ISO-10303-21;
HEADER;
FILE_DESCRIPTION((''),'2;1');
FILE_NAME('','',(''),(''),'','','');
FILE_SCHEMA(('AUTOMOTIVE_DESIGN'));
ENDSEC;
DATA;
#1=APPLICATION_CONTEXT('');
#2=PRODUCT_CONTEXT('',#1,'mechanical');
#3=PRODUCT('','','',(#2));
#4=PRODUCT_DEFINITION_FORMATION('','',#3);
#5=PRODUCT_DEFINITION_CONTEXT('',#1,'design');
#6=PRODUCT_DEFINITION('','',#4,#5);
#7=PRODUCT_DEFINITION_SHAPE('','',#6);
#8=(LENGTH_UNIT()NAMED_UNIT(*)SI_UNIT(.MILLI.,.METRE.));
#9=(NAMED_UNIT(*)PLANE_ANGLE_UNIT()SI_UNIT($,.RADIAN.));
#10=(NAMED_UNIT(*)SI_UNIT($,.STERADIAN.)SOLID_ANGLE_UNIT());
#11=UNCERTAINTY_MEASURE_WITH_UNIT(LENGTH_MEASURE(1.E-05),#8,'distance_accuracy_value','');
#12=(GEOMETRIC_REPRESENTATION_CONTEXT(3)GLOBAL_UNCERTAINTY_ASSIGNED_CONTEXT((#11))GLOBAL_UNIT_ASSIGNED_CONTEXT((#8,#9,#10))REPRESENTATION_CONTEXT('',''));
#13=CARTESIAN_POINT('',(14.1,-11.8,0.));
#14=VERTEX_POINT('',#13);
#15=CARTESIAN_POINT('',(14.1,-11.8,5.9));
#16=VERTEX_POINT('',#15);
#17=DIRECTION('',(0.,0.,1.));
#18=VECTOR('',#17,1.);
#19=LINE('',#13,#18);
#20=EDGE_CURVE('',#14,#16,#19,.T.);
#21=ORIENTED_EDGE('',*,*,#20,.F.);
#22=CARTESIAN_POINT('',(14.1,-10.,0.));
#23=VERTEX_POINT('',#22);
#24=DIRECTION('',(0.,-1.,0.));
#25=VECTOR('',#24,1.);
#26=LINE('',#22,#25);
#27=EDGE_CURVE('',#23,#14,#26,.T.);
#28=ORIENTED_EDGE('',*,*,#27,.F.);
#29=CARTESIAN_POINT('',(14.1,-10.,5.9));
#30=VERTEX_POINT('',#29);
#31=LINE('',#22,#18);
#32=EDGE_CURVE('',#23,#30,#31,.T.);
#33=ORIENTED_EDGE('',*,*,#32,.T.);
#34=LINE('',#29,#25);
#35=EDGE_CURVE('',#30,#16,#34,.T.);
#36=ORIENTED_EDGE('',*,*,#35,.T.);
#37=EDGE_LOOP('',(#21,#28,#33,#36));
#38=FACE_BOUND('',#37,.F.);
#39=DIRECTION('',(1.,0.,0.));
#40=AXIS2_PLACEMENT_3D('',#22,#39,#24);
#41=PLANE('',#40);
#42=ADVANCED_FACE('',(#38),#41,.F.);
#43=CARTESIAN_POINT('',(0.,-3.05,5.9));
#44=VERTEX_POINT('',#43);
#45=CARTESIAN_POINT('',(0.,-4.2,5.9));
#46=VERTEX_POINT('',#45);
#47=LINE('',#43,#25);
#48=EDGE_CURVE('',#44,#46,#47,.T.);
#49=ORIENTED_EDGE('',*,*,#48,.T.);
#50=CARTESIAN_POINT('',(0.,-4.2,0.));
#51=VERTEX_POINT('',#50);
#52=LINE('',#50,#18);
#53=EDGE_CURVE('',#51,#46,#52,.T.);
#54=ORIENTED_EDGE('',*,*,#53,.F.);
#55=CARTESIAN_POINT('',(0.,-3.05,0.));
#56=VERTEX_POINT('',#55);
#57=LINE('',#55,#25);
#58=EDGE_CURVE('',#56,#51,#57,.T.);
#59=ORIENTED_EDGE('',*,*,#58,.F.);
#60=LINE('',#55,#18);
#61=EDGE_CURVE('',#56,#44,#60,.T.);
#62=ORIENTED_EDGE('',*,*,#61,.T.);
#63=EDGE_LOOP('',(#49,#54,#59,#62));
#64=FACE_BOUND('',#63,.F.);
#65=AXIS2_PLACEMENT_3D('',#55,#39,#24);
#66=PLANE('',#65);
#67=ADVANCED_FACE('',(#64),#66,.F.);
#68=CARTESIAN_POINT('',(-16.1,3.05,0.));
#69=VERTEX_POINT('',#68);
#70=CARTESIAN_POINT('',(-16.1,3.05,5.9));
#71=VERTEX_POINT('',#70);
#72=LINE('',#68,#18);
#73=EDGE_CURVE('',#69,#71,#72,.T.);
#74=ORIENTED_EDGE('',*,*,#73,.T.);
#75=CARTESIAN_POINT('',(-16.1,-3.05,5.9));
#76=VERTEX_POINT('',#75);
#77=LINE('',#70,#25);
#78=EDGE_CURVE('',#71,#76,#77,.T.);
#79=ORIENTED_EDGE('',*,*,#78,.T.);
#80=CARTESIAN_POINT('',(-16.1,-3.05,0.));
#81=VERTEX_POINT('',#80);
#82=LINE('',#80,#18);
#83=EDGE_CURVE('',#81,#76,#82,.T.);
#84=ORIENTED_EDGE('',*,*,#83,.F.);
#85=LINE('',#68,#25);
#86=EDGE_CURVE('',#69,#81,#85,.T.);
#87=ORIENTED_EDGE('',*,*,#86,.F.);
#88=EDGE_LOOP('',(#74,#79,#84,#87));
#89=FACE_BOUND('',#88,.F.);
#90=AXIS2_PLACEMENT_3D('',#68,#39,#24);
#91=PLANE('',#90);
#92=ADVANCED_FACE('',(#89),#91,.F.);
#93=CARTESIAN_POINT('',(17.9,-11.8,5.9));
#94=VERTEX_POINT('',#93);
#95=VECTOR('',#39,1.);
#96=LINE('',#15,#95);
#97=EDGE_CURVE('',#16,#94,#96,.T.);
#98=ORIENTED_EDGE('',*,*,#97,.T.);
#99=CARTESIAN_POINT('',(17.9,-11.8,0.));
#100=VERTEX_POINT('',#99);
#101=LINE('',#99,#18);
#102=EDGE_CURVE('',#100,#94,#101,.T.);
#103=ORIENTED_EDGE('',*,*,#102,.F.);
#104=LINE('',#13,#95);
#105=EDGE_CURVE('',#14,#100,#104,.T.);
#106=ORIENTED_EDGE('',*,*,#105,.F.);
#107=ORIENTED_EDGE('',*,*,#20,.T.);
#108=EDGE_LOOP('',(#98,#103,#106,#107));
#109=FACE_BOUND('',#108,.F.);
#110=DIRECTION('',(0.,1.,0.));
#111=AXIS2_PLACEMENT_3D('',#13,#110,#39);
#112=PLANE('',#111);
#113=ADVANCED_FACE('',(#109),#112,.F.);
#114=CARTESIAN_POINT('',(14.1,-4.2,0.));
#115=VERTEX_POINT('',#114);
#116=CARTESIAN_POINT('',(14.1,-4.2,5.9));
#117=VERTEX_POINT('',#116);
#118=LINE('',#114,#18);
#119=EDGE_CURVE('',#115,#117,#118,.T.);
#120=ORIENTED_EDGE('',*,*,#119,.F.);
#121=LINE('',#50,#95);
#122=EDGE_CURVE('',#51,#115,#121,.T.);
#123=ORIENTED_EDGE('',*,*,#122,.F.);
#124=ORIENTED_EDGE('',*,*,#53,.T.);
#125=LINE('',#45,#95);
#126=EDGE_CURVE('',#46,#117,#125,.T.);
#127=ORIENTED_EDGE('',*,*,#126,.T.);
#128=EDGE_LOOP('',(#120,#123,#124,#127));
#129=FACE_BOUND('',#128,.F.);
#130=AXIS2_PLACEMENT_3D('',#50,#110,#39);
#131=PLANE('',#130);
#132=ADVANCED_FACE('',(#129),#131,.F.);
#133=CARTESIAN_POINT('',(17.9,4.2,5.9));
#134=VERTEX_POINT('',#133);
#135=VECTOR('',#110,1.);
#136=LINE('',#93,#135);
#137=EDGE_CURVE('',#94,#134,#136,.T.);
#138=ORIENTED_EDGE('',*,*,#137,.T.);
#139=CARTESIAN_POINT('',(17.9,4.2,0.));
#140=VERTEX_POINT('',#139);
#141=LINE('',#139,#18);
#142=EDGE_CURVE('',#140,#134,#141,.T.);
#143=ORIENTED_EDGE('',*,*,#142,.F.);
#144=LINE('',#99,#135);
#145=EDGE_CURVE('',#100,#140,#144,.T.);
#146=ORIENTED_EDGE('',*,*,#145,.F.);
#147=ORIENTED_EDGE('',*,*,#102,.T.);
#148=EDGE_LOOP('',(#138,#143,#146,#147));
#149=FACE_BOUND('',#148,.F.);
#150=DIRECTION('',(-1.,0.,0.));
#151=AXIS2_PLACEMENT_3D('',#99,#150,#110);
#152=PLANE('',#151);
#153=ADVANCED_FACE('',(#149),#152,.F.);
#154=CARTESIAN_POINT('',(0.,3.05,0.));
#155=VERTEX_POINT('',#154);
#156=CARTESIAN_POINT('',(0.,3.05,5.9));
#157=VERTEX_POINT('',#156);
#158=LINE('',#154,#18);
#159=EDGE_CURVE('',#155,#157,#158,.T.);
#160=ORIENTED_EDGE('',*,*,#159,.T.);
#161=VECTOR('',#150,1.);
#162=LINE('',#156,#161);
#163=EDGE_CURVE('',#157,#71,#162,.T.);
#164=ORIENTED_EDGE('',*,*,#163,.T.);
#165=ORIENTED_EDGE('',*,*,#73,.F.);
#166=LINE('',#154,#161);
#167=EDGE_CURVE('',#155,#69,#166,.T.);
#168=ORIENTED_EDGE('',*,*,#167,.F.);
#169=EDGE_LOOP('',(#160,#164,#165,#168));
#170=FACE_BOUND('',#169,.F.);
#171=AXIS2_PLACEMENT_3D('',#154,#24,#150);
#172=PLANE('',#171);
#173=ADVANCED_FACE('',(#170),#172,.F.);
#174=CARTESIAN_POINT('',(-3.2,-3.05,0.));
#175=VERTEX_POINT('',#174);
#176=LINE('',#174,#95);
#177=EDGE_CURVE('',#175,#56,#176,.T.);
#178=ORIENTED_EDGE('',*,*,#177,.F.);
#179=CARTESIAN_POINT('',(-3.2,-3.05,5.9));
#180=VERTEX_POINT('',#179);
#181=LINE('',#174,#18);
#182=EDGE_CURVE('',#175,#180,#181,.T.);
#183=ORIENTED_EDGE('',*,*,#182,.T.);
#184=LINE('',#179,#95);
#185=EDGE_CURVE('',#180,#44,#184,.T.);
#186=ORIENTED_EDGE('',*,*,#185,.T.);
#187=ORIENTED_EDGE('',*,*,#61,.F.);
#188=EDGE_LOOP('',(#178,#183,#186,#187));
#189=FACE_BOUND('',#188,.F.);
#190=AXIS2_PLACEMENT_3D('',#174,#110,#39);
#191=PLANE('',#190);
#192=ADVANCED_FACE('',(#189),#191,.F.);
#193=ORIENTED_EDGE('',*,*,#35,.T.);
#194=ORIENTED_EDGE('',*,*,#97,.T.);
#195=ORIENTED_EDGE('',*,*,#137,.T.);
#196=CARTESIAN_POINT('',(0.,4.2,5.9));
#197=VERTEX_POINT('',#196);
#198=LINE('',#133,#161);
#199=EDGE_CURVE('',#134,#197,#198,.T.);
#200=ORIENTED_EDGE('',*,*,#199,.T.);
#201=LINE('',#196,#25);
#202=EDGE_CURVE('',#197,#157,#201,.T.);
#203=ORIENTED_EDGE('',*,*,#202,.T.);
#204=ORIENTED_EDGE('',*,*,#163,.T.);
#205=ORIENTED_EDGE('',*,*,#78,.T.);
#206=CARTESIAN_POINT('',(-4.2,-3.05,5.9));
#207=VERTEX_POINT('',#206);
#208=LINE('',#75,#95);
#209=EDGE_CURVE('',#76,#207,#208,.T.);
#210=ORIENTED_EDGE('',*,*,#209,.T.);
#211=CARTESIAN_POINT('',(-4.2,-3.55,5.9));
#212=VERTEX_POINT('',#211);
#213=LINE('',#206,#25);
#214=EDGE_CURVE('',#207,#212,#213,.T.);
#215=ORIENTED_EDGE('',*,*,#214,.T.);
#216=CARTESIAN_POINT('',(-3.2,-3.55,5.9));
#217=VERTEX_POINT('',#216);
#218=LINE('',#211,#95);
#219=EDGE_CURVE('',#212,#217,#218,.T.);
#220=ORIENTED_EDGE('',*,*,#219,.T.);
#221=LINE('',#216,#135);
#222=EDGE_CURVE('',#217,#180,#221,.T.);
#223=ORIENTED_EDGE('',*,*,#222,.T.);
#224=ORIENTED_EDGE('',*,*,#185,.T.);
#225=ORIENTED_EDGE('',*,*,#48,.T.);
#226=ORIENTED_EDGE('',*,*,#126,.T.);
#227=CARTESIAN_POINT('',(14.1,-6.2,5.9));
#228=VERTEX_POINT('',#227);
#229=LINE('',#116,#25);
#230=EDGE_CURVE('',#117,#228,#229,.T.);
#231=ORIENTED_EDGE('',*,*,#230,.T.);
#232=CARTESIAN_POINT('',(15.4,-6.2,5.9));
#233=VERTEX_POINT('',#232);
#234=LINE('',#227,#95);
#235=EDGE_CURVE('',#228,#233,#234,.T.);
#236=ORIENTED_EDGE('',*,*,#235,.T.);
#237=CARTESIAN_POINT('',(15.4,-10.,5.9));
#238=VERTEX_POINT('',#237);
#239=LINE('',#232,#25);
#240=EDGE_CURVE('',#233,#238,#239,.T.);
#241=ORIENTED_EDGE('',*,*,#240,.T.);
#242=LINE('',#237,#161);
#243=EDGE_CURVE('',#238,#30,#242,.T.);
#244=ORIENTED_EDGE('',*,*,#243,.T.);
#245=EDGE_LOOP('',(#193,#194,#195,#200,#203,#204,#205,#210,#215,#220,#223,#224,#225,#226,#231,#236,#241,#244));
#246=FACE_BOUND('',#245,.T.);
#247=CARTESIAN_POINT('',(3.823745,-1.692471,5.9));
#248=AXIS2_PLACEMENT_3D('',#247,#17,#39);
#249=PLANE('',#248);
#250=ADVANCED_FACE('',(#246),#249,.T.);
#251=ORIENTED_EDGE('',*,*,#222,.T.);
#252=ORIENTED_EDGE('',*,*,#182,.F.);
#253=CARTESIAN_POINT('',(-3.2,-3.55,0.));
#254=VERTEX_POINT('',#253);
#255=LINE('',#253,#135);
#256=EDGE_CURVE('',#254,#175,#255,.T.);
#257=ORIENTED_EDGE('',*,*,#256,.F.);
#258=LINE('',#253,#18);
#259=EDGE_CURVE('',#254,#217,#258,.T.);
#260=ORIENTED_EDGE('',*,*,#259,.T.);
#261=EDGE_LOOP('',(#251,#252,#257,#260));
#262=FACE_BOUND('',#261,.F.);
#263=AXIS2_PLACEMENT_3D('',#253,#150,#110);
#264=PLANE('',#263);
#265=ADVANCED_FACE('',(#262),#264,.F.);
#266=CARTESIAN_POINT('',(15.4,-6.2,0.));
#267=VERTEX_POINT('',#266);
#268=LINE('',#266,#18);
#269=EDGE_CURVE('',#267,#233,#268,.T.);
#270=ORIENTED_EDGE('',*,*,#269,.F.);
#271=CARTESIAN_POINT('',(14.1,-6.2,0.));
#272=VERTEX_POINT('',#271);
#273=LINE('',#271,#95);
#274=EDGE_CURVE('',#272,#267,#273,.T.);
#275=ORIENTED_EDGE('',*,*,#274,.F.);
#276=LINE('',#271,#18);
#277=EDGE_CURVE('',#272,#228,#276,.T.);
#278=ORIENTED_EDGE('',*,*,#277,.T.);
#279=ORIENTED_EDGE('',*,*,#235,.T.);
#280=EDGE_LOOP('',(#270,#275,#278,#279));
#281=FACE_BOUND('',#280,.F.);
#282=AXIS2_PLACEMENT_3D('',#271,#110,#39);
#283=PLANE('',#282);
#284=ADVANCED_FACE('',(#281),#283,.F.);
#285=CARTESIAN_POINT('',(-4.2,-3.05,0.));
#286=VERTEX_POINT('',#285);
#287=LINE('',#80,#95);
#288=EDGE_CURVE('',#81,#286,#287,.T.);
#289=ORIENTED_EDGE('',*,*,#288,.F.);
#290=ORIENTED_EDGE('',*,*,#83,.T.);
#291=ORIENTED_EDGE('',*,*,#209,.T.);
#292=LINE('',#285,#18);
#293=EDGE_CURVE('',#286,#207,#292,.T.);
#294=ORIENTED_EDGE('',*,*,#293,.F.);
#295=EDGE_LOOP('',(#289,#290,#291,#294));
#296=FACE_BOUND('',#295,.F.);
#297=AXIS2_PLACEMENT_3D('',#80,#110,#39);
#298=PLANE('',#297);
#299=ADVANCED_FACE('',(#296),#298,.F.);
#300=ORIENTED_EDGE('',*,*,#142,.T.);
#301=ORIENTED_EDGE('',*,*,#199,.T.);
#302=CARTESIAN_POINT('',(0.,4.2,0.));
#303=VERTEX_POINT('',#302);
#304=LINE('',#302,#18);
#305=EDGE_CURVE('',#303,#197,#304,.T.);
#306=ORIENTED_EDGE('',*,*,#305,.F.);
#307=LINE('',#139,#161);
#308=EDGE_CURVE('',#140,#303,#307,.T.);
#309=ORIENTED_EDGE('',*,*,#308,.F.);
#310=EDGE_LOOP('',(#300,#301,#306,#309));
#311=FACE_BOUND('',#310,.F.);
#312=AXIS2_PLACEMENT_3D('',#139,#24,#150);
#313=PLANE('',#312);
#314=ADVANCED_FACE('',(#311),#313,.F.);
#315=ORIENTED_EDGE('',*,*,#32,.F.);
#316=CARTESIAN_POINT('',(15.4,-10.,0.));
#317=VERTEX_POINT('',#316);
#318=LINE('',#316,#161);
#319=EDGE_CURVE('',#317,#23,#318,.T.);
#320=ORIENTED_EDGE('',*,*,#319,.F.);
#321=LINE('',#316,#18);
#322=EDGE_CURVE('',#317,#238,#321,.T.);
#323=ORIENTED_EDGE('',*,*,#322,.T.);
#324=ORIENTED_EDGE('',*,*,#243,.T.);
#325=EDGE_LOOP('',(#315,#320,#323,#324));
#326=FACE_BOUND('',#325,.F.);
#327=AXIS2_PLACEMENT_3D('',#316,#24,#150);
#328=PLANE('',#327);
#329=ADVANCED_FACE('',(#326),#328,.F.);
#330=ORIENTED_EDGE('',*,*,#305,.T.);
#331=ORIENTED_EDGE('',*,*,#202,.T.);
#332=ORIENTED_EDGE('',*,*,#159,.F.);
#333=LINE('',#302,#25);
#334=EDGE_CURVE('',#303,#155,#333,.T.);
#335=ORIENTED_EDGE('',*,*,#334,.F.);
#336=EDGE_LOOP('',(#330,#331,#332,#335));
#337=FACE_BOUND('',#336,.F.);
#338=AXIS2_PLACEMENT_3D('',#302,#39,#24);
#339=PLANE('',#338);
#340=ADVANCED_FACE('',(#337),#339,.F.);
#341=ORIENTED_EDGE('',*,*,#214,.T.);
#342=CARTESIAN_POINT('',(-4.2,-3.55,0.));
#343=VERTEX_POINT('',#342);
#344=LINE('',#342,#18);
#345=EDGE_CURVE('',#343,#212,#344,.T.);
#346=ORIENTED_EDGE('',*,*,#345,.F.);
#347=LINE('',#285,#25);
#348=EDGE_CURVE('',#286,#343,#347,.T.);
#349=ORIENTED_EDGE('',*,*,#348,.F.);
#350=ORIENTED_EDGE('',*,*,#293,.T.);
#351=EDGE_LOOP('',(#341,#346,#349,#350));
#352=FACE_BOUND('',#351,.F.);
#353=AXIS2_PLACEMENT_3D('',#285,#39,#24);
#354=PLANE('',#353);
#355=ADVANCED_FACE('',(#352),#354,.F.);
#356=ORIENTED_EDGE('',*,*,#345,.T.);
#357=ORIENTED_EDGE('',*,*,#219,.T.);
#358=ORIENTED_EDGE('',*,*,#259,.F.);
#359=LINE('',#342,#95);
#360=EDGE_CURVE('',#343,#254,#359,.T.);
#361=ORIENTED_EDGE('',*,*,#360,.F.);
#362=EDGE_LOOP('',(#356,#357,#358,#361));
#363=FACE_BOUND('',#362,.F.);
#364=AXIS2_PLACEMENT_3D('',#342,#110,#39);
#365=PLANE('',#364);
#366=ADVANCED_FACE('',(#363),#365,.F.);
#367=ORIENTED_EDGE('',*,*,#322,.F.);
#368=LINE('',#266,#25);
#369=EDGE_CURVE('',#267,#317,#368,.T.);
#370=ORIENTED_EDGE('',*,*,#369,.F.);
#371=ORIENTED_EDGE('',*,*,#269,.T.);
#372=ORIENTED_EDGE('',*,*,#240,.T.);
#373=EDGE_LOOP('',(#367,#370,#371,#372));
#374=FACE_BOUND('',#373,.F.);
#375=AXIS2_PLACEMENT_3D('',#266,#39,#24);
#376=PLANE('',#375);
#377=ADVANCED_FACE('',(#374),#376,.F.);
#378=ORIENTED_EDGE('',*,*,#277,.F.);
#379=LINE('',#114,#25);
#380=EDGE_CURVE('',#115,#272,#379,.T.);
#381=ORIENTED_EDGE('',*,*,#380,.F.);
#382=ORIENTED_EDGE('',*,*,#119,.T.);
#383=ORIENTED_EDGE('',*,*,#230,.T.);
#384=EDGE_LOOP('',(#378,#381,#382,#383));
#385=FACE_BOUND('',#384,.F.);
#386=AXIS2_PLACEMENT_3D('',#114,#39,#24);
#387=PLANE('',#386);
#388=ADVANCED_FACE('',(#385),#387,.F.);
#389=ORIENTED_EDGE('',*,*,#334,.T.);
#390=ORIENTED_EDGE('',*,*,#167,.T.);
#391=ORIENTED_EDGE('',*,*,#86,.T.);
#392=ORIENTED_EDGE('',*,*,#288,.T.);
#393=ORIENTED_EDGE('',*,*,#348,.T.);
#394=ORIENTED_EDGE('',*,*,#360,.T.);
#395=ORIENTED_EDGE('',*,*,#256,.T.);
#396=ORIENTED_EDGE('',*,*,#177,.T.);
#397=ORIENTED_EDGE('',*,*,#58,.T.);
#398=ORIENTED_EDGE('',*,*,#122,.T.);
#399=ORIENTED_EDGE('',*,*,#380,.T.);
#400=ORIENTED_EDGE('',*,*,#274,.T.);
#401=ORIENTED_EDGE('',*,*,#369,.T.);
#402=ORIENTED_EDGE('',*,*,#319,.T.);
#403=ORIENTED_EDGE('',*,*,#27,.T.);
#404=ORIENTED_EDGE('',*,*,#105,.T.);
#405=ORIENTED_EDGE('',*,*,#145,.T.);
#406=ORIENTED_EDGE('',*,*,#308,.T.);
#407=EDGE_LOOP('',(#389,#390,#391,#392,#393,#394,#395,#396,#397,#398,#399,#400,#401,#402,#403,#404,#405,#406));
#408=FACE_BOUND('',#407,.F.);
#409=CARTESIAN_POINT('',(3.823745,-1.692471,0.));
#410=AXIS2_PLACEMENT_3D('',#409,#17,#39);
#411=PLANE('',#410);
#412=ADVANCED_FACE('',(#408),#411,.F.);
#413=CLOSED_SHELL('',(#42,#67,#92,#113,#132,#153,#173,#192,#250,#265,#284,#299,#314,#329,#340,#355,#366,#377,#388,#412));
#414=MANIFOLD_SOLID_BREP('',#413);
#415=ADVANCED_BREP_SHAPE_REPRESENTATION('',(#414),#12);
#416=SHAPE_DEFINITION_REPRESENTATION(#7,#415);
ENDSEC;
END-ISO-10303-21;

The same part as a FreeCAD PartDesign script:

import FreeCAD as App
import Part
import Sketcher
from FreeCAD import Vector
Q = App.Units.Quantity

doc = App.newDocument("Part")
body = doc.addObject("PartDesign::Body", "Body")

sketch1 = doc.addObject("Sketcher::SketchObject", "Sketch")
body.addObject(sketch1)
sketch1.AttachmentSupport = (doc.XY_Plane, [""])
sketch1.MapMode = "FlatFace"
sketch1.addGeometry(Part.LineSegment(Vector(17.9, 4.2, 0), Vector(0, 4.2, 0)), False)
sketch1.addGeometry(Part.LineSegment(Vector(0, 4.2, 0), Vector(0, 3, 0)), False)
sketch1.addGeometry(Part.LineSegment(Vector(0, 3, 0), Vector(-16.1, 3, 0)), False)
sketch1.addGeometry(Part.LineSegment(Vector(-16.1, 3, 0), Vector(-16.1, -3, 0)), False)
sketch1.addGeometry(Part.LineSegment(Vector(-16.1, -3, 0), Vector(-4.2, -3, 0)), False)
sketch1.addGeometry(Part.LineSegment(Vector(-4.2, -3, 0), Vector(-4.2, -3.5, 0)), False)
sketch1.addGeometry(Part.LineSegment(Vector(-4.2, -3.5, 0), Vector(-3.2, -3.5, 0)), False)
sketch1.addGeometry(Part.LineSegment(Vector(-3.2, -3.5, 0), Vector(-3.2, -3, 0)), False)
sketch1.addGeometry(Part.LineSegment(Vector(-3.2, -3, 0), Vector(0, -3, 0)), False)
sketch1.addGeometry(Part.LineSegment(Vector(0, -3, 0), Vector(0, -4.2, 0)), False)
sketch1.addGeometry(Part.LineSegment(Vector(0, -4.2, 0), Vector(14.1, -4.2, 0)), False)
sketch1.addGeometry(Part.LineSegment(Vector(14.1, -4.2, 0), Vector(14.1, -6.2, 0)), False)
sketch1.addGeometry(Part.LineSegment(Vector(14.1, -6.2, 0), Vector(15.4, -6.2, 0)), False)
sketch1.addGeometry(Part.LineSegment(Vector(15.4, -6.2, 0), Vector(15.4, -10, 0)), False)
sketch1.addGeometry(Part.LineSegment(Vector(15.4, -10, 0), Vector(14.1, -10, 0)), False)
sketch1.addGeometry(Part.LineSegment(Vector(14.1, -10, 0), Vector(14.1, -11.8, 0)), False)
sketch1.addGeometry(Part.LineSegment(Vector(14.1, -11.8, 0), Vector(17.9, -11.8, 0)), False)
sketch1.addGeometry(Part.LineSegment(Vector(17.9, -11.8, 0), Vector(17.9, 4.2, 0)), False)
sketch1.addConstraint(Sketcher.Constraint("Coincident", 0, 2, 1, 1))
sketch1.addConstraint(Sketcher.Constraint("Coincident", 1, 2, 2, 1))
sketch1.addConstraint(Sketcher.Constraint("Coincident", 2, 2, 3, 1))
sketch1.addConstraint(Sketcher.Constraint("Coincident", 3, 2, 4, 1))
sketch1.addConstraint(Sketcher.Constraint("Coincident", 4, 2, 5, 1))
sketch1.addConstraint(Sketcher.Constraint("Coincident", 5, 2, 6, 1))
sketch1.addConstraint(Sketcher.Constraint("Coincident", 6, 2, 7, 1))
sketch1.addConstraint(Sketcher.Constraint("Coincident", 7, 2, 8, 1))
sketch1.addConstraint(Sketcher.Constraint("Coincident", 8, 2, 9, 1))
sketch1.addConstraint(Sketcher.Constraint("Coincident", 9, 2, 10, 1))
sketch1.addConstraint(Sketcher.Constraint("Coincident", 10, 2, 11, 1))
sketch1.addConstraint(Sketcher.Constraint("Coincident", 11, 2, 12, 1))
sketch1.addConstraint(Sketcher.Constraint("Coincident", 12, 2, 13, 1))
sketch1.addConstraint(Sketcher.Constraint("Coincident", 13, 2, 14, 1))
sketch1.addConstraint(Sketcher.Constraint("Coincident", 14, 2, 15, 1))
sketch1.addConstraint(Sketcher.Constraint("Coincident", 15, 2, 16, 1))
sketch1.addConstraint(Sketcher.Constraint("Coincident", 16, 2, 17, 1))
sketch1.addConstraint(Sketcher.Constraint("Coincident", 17, 2, 0, 1))
sketch1.addConstraint(Sketcher.Constraint("Horizontal", 0))
sketch1.addConstraint(Sketcher.Constraint("Vertical", 1))
sketch1.addConstraint(Sketcher.Constraint("Horizontal", 2))
sketch1.addConstraint(Sketcher.Constraint("Vertical", 3))
sketch1.addConstraint(Sketcher.Constraint("Horizontal", 4))
sketch1.addConstraint(Sketcher.Constraint("Vertical", 5))
sketch1.addConstraint(Sketcher.Constraint("Horizontal", 6))
sketch1.addConstraint(Sketcher.Constraint("Vertical", 7))
sketch1.addConstraint(Sketcher.Constraint("Horizontal", 8))
sketch1.addConstraint(Sketcher.Constraint("Vertical", 9))
sketch1.addConstraint(Sketcher.Constraint("Horizontal", 10))
sketch1.addConstraint(Sketcher.Constraint("Vertical", 11))
sketch1.addConstraint(Sketcher.Constraint("Horizontal", 12))
sketch1.addConstraint(Sketcher.Constraint("Vertical", 13))
sketch1.addConstraint(Sketcher.Constraint("Horizontal", 14))
sketch1.addConstraint(Sketcher.Constraint("Vertical", 15))
sketch1.addConstraint(Sketcher.Constraint("Horizontal", 16))
sketch1.addConstraint(Sketcher.Constraint("Vertical", 17))
sketch1.addConstraint(Sketcher.Constraint("Symmetric", 1, 2, 8, 2, -1, 1))
sketch1.addConstraint(Sketcher.Constraint("Symmetric", 0, 2, 9, 2, -1))
sketch1.addConstraint(Sketcher.Constraint("Horizontal", 4, 2, 7, 2))
sketch1.addConstraint(Sketcher.Constraint("Vertical", 11, 2, 14, 2))
sketch1.addConstraint(Sketcher.Constraint("Equal", 16, 13))
sketch1.addConstraint(Sketcher.Constraint("DistanceX", 6, 1, 6, 2, Q("1 mm")))
sketch1.addConstraint(Sketcher.Constraint("DistanceY", 11, 2, 11, 1, Q("2 mm")))
sketch1.addConstraint(Sketcher.Constraint("DistanceY", 17, 1, 17, 2, Q("16 mm")))
sketch1.addConstraint(Sketcher.Constraint("DistanceX", 0, 2, 0, 1, Q("17.9 mm")))
sketch1.addConstraint(Sketcher.Constraint("DistanceX", 2, 2, 2, 1, Q("16.1 mm")))
sketch1.addConstraint(Sketcher.Constraint("DistanceX", 4, 1, 4, 2, Q("11.9 mm")))
sketch1.addConstraint(Sketcher.Constraint("DistanceX", 10, 1, 10, 2, Q("14.1 mm")))
sketch1.addConstraint(Sketcher.Constraint("DistanceX", 12, 1, 12, 2, Q("1.3 mm")))
sketch1.addConstraint(Sketcher.Constraint("DistanceY", 3, 2, 3, 1, Q("6.1 mm")))
sketch1.addConstraint(Sketcher.Constraint("DistanceY", 5, 2, 5, 1, Q("0.5 mm")))
sketch1.addConstraint(Sketcher.Constraint("DistanceY", 15, 2, 15, 1, Q("1.8 mm")))
pad1 = doc.addObject("PartDesign::Pad", "Pad")
body.addObject(pad1)
pad1.Profile = sketch1
pad1.Length = 5.9

doc.recompute()
